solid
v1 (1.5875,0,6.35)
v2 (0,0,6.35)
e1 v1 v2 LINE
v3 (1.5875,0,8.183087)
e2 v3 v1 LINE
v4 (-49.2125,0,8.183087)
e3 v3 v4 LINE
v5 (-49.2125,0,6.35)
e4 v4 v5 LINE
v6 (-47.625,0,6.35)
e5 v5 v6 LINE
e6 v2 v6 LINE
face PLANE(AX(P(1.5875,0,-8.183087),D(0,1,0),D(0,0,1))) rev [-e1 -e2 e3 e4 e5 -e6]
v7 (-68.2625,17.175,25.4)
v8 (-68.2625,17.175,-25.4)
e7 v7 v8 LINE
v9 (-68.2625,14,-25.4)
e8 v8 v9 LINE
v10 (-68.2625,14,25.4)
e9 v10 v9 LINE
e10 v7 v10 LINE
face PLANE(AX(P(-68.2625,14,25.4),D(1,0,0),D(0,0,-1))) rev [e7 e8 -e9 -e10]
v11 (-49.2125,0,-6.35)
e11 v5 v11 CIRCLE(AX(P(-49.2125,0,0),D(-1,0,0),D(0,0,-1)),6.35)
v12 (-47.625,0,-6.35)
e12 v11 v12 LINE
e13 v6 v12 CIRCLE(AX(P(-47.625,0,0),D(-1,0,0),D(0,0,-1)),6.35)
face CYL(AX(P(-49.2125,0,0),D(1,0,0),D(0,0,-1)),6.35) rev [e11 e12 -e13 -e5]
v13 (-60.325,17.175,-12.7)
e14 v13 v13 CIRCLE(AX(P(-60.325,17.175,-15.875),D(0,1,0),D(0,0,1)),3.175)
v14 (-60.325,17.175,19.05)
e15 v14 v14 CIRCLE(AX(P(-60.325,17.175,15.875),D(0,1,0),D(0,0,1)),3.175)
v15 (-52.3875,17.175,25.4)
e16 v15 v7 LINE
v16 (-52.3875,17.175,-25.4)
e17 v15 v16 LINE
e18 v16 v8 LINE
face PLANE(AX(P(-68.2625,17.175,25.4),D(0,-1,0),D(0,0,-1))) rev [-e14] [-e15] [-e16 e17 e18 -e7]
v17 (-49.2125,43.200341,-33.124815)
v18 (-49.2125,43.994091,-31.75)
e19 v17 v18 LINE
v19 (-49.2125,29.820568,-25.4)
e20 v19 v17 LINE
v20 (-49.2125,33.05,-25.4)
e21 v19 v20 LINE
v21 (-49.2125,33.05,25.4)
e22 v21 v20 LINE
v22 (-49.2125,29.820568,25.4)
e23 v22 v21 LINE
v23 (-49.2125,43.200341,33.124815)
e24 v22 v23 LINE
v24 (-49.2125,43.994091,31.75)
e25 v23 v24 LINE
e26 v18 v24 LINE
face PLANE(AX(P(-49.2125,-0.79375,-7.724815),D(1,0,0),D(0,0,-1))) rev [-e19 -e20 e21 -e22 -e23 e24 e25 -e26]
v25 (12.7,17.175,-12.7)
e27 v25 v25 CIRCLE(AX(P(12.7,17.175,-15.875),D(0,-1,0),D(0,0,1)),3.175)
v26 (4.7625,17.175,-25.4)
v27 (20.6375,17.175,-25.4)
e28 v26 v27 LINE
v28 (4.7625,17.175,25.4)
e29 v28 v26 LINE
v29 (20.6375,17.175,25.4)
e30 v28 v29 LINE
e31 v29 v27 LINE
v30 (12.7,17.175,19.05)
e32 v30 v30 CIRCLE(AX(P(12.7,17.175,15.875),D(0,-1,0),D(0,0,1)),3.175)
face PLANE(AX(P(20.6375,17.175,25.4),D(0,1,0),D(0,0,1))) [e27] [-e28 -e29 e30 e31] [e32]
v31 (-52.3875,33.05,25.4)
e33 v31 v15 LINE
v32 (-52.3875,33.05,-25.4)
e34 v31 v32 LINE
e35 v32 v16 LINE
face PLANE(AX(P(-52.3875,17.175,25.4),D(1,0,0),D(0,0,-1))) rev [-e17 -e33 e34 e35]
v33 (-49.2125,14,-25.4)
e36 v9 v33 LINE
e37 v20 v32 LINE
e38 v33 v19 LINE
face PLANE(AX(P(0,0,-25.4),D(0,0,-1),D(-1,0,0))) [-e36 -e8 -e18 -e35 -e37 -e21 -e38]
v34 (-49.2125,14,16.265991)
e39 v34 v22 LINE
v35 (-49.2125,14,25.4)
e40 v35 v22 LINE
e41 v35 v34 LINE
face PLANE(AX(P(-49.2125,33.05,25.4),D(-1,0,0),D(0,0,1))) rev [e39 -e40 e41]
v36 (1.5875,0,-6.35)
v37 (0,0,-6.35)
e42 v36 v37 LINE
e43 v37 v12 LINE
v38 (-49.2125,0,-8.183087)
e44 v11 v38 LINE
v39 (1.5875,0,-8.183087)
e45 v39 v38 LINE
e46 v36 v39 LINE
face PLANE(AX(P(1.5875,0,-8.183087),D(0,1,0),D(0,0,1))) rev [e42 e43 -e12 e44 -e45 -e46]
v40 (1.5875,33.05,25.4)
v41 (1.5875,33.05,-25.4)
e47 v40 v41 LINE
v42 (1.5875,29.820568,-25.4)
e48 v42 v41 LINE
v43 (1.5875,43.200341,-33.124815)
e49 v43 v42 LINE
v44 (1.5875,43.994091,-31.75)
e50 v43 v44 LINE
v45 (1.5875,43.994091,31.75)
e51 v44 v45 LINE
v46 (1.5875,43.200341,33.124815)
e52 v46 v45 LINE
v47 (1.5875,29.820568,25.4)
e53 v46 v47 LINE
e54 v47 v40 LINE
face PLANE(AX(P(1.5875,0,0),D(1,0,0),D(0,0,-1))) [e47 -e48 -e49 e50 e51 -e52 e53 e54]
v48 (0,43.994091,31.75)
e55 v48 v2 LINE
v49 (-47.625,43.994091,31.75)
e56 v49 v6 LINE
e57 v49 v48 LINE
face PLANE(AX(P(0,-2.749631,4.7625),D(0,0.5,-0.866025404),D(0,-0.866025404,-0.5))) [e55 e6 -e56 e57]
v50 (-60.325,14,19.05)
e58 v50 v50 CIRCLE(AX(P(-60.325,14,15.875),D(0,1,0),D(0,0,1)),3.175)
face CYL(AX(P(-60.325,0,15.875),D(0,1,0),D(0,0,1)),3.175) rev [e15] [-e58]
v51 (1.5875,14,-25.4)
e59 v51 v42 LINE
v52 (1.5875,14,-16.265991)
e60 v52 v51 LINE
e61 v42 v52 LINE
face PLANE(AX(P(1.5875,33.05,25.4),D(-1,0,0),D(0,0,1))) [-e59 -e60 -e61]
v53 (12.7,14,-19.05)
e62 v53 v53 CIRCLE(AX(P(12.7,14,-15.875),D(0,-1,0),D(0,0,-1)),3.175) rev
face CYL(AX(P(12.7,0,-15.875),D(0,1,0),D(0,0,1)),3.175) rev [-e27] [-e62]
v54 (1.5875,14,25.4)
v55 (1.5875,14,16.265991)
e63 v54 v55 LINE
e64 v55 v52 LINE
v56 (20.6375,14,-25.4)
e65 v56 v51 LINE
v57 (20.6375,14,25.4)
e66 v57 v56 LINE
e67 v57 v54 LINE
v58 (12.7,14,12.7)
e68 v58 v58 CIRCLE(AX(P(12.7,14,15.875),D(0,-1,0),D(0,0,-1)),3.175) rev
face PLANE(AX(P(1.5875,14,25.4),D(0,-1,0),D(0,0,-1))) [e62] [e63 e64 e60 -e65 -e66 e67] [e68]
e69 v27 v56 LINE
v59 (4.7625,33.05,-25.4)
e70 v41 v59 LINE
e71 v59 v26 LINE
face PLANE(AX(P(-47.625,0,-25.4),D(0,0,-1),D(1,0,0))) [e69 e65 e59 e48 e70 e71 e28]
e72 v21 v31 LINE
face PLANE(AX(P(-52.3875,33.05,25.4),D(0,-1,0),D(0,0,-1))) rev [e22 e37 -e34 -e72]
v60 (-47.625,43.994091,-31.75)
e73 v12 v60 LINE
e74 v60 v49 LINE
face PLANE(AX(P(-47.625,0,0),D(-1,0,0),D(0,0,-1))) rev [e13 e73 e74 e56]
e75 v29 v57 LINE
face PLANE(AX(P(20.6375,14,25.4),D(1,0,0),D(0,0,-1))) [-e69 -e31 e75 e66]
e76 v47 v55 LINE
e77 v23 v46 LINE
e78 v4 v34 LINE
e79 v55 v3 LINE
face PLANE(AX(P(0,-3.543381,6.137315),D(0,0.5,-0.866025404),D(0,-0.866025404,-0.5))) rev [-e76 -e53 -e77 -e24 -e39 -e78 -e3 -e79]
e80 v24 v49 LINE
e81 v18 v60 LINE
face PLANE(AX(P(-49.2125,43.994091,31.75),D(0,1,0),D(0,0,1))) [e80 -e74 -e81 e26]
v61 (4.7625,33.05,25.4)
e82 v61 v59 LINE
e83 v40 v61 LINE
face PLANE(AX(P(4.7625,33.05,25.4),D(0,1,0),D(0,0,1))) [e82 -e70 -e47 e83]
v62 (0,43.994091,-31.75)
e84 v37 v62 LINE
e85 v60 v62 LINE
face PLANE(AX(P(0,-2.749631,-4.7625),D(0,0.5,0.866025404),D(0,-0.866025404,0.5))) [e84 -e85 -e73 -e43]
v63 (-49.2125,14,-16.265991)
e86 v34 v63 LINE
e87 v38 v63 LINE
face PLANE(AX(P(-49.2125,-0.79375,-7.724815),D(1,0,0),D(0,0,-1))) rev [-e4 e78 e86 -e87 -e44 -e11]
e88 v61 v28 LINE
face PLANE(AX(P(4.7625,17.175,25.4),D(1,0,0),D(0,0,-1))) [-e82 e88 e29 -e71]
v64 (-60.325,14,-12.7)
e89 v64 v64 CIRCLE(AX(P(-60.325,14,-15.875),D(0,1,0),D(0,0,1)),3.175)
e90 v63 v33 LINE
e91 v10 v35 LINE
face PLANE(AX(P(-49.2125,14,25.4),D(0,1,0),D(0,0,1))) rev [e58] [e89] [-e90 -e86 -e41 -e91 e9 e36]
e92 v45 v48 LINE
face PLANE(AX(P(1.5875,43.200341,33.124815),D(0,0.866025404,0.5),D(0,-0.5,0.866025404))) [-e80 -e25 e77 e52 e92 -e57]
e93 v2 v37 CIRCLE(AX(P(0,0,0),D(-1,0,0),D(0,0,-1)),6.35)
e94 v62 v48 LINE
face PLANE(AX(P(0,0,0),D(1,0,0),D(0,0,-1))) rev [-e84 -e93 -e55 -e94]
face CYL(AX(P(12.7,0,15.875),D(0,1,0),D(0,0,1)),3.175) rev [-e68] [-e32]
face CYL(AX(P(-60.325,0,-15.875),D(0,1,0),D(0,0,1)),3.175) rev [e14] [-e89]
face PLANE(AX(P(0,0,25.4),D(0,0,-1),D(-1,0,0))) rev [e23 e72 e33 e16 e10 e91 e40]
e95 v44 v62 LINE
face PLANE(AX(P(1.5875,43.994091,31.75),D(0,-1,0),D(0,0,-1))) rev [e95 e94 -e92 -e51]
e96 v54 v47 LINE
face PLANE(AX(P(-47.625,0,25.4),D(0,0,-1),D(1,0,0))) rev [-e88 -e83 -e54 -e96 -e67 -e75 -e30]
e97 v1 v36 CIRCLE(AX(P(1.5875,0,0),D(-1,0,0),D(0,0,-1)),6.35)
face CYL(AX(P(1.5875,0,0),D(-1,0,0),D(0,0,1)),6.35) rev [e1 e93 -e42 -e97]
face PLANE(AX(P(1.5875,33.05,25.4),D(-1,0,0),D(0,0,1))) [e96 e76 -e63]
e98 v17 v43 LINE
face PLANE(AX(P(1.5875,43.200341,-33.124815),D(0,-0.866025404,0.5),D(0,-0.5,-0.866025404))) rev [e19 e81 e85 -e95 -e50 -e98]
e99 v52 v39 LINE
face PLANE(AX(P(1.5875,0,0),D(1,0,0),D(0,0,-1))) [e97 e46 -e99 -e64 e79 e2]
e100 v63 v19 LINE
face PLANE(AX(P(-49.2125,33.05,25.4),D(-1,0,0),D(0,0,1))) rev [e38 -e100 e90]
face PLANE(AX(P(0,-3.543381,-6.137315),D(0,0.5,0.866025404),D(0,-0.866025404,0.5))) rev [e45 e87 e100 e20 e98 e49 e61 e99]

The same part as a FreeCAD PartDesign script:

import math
import FreeCAD as App
import Part
import Sketcher
from FreeCAD import Vector
Q = App.Units.Quantity

doc = App.newDocument("Part")
body = doc.addObject("PartDesign::Body", "Body")

# Sketch on YZ plane
sketch1 = doc.addObject("Sketcher::SketchObject", "Sketch")
body.addObject(sketch1)
sketch1.AttachmentSupport = (doc.YZ_Plane, [""])
sketch1.MapMode = "FlatFace"
sketch1.addGeometry(Part.LineSegment(Vector(44, 32, 0), Vector(0, 6, 0)), False)
sketch1.addGeometry(Part.ArcOfCircle(Part.Circle(Vector(0, 0, 0), Vector(0, 0, 1), 6), math.radians(-90), math.radians(90)), False)
sketch1.addGeometry(Part.LineSegment(Vector(0, -6, 0), Vector(44, -32, 0)), False)
sketch1.addGeometry(Part.LineSegment(Vector(44, -32, 0), Vector(44, 32, 0)), False)
sketch1.addConstraint(Sketcher.Constraint("Coincident", 0, 2, 1, 2))
sketch1.addConstraint(Sketcher.Constraint("Coincident", 1, 1, 2, 1))
sketch1.addConstraint(Sketcher.Constraint("Coincident", 2, 2, 3, 1))
sketch1.addConstraint(Sketcher.Constraint("Coincident", 3, 2, 0, 1))
sketch1.addConstraint(Sketcher.Constraint("Vertical", 3))
sketch1.addConstraint(Sketcher.Constraint("Coincident", 1, 3, -1, 1))
sketch1.addConstraint(Sketcher.Constraint("PointOnObject", 0, 2, -2))
sketch1.addConstraint(Sketcher.Constraint("PointOnObject", 1, 1, -2))
sketch1.addConstraint(Sketcher.Constraint("Equal", 0, 2))
sketch1.addConstraint(Sketcher.Constraint("Radius", 1, Q("0.25 in")))
sketch1.addConstraint(Sketcher.Constraint("Distance", 0, Q("2 in")))
sketch1.addConstraint(Sketcher.Constraint("DistanceY", 3, 1, 3, 2, Q("2.5 in")))
pad1 = doc.addObject("PartDesign::Pad", "Pad")
body.addObject(pad1)
pad1.Profile = sketch1
pad1.Length = Q("0.0625 in")

# Sketch on an angled plane
sketch2 = doc.addObject("Sketcher::SketchObject", "Sketch001")
body.addObject(sketch2)
sketch2.Placement = App.Placement(Vector(0, -2.749631, -4.7625), App.Rotation(Vector(-1, 0, 0), Vector(0, 0.866025404, -0.5), Vector(0, -0.5, -0.866025404), "ZXY"))
sketch2.addGeometry(Part.LineSegment(Vector(-2, 54, 0), Vector(-2, 3, 0)), False)
sketch2.addGeometry(Part.LineSegment(Vector(-2, 3, 0), Vector(49, 3, 0)), False)
sketch2.addGeometry(Part.LineSegment(Vector(49, 3, 0), Vector(49, 54, 0)), False)
sketch2.addGeometry(Part.LineSegment(Vector(49, 54, 0), Vector(-2, 54, 0)), False)
sketch2.addConstraint(Sketcher.Constraint("Coincident", 0, 2, 1, 1))
sketch2.addConstraint(Sketcher.Constraint("Coincident", 1, 2, 2, 1))
sketch2.addConstraint(Sketcher.Constraint("Coincident", 2, 2, 3, 1))
sketch2.addConstraint(Sketcher.Constraint("Coincident", 3, 2, 0, 1))
sketch2.addConstraint(Sketcher.Constraint("Vertical", 0))
sketch2.addConstraint(Sketcher.Constraint("Horizontal", 1))
sketch2.addConstraint(Sketcher.Constraint("Vertical", 2))
sketch2.addConstraint(Sketcher.Constraint("Horizontal", 3))
sketch2.addConstraint(Sketcher.Constraint("Equal", 3, 0))
sketch2.addConstraint(Sketcher.Constraint("DistanceX", 1, 1, 1, 2, Q("2 in")))
sketch2.addConstraint(Sketcher.Constraint("DistanceX", 0, 2, -1, 1, Q("0.0625 in")))
sketch2.addConstraint(Sketcher.Constraint("DistanceY", -1, 1, 0, 2, Q("0.125 in")))
pad2 = doc.addObject("PartDesign::Pad", "Pad001")
body.addObject(pad2)
pad2.Profile = sketch2
pad2.Length = Q("0.0625 in")
doc.recompute()

mirrored = doc.addObject("PartDesign::Mirrored", "Mirrored")
body.addObject(mirrored)
mirrored.Originals = [pad2]
mirrored.MirrorPlane = (doc.XY_Plane, [""])
body.Tip = mirrored
doc.recompute()

datumplane = doc.addObject("PartDesign::Plane", "DatumPlane")
body.addObject(datumplane)
datumplane.AttachmentSupport = (doc.YZ_Plane, [""])
datumplane.MapMode = "FlatFace"
datumplane.AttachmentOffset = App.Placement(Vector(0, 0, -0.9375 * 25.4), App.Rotation())
mirrored2 = doc.addObject("PartDesign::Mirrored", "Mirrored001")
body.addObject(mirrored2)
mirrored2.Originals = [pad1]
mirrored2.MirrorPlane = (datumplane, [""])
body.Tip = mirrored2

# Sketch on YZ plane
sketch3 = doc.addObject("Sketcher::SketchObject", "Sketch002")
body.addObject(sketch3)
sketch3.AttachmentSupport = (doc.YZ_Plane, [""])
sketch3.MapMode = "FlatFace"
sketch3.AttachmentOffset = App.Placement(Vector(0, 0, -1.9375 * 25.4), App.Rotation())
sketch3.addGeometry(Part.LineSegment(Vector(0, -8.2, 0), Vector(-0.8, -8.2, 0)), False)
sketch3.addGeometry(Part.LineSegment(Vector(-0.8, -8.2, 0), Vector(-0.8, 8.2, 0)), False)
sketch3.addGeometry(Part.LineSegment(Vector(-0.8, 8.2, 0), Vector(0, 8.2, 0)), False)
sketch3.addGeometry(Part.LineSegment(Vector(0, 8.2, 0), Vector(0, -8.2, 0)), False)
sketch3.addConstraint(Sketcher.Constraint("Coincident", 0, 2, 1, 1))
sketch3.addConstraint(Sketcher.Constraint("Coincident", 1, 2, 2, 1))
sketch3.addConstraint(Sketcher.Constraint("Coincident", 2, 2, 3, 1))
sketch3.addConstraint(Sketcher.Constraint("Coincident", 3, 2, 0, 1))
sketch3.addConstraint(Sketcher.Constraint("Horizontal", 0))
sketch3.addConstraint(Sketcher.Constraint("Vertical", 1))
sketch3.addConstraint(Sketcher.Constraint("Horizontal", 2))
sketch3.addConstraint(Sketcher.Constraint("Vertical", 3))
sketch3.addConstraint(Sketcher.Constraint("Symmetric", 2, 2, 3, 2, -1, 1))
sketch3.addConstraint(Sketcher.Constraint("DistanceX", 0, 2, 0, 1, Q("0.03125 in")))
sketch3.addConstraint(Sketcher.Constraint("DistanceY", 1, 1, 1, 2, Q("16.366174 mm")))
pocket1 = doc.addObject("PartDesign::Pocket", "Pocket")
body.addObject(pocket1)
pocket1.Profile = sketch3
pocket1.Type = "ThroughAll"
pocket1.Reversed = True

# Sketch on XY plane
sketch4 = doc.addObject("Sketcher::SketchObject", "Sketch003")
body.addObject(sketch4)
sketch4.AttachmentSupport = (doc.XY_Plane, [""])
sketch4.MapMode = "FlatFace"
sketch4.addGeometry(Part.LineSegment(Vector(-49.2, 14, 0), Vector(-49.2, 33, 0)), False)
sketch4.addGeometry(Part.LineSegment(Vector(-49.2, 33, 0), Vector(-52.4, 33, 0)), False)
sketch4.addGeometry(Part.LineSegment(Vector(-52.4, 33, 0), Vector(-52.4, 17.2, 0)), False)
sketch4.addGeometry(Part.LineSegment(Vector(-52.4, 17.2, 0), Vector(-68.3, 17.2, 0)), False)
sketch4.addGeometry(Part.LineSegment(Vector(-68.3, 17.2, 0), Vector(-68.3, 14, 0)), False)
sketch4.addGeometry(Part.LineSegment(Vector(-68.3, 14, 0), Vector(-49.2, 14, 0)), False)
sketch4.addConstraint(Sketcher.Constraint("Coincident", 0, 2, 1, 1))
sketch4.addConstraint(Sketcher.Constraint("Coincident", 1, 2, 2, 1))
sketch4.addConstraint(Sketcher.Constraint("Coincident", 2, 2, 3, 1))
sketch4.addConstraint(Sketcher.Constraint("Coincident", 3, 2, 4, 1))
sketch4.addConstraint(Sketcher.Constraint("Coincident", 4, 2, 5, 1))
sketch4.addConstraint(Sketcher.Constraint("Coincident", 5, 2, 0, 1))
sketch4.addConstraint(Sketcher.Constraint("Vertical", 0))
sketch4.addConstraint(Sketcher.Constraint("Horizontal", 1))
sketch4.addConstraint(Sketcher.Constraint("Vertical", 2))
sketch4.addConstraint(Sketcher.Constraint("Horizontal", 3))
sketch4.addConstraint(Sketcher.Constraint("Vertical", 4))
sketch4.addConstraint(Sketcher.Constraint("Horizontal", 5))
sketch4.addConstraint(Sketcher.Constraint("Equal", 5, 0))
sketch4.addConstraint(Sketcher.Constraint("Equal", 3, 2))
sketch4.addConstraint(Sketcher.Constraint("DistanceX", 5, 1, 5, 2, Q("0.75 in")))
sketch4.addConstraint(Sketcher.Constraint("DistanceX", 1, 2, 1, 1, Q("0.125 in")))
sketch4.addConstraint(Sketcher.Constraint("DistanceX", 0, 2, -1, 1, Q("1.9375 in")))
sketch4.addConstraint(Sketcher.Constraint("DistanceY", -1, 1, 0, 2, Q("33.05 mm")))
pad3 = doc.addObject("PartDesign::Pad", "Pad002")
body.addObject(pad3)
pad3.Profile = sketch4
pad3.Length = Q("2 in")
pad3.Midplane = True

# Sketch on XZ plane
sketch5 = doc.addObject("Sketcher::SketchObject", "Sketch004")
body.addObject(sketch5)
sketch5.AttachmentSupport = (doc.XZ_Plane, [""])
sketch5.MapMode = "FlatFace"
sketch5.AttachmentOffset = App.Placement(Vector(0, 0, -17.175), App.Rotation())
sketch5.addGeometry(Part.Circle(Vector(-60.3, -15.9, 0), Vector(0, 0, 1), 3.2), False)
sketch5.addGeometry(Part.Circle(Vector(-60.3, 15.9, 0), Vector(0, 0, 1), 3.2), False)
sketch5.addConstraint(Sketcher.Constraint("Equal", 0, 1))
sketch5.addConstraint(Sketcher.Constraint("Symmetric", 0, 3, 1, 3, -1))
sketch5.addConstraint(Sketcher.Constraint("Diameter", 0, Q("0.25 in")))
sketch5.addConstraint(Sketcher.Constraint("DistanceY", 0, 3, 1, 3, Q("1.25 in")))
sketch5.addConstraint(Sketcher.Constraint("DistanceX", 0, 3, -1, 1, Q("2.375 in")))
pocket2 = doc.addObject("PartDesign::Pocket", "Pocket001")
body.addObject(pocket2)
pocket2.Profile = sketch5
pocket2.Type = "ThroughAll"
pocket2.Reversed = True
doc.recompute()

datumplane2 = doc.addObject("PartDesign::Plane", "DatumPlane001")
body.addObject(datumplane2)
datumplane2.AttachmentSupport = (doc.YZ_Plane, [""])
datumplane2.MapMode = "FlatFace"
datumplane2.AttachmentOffset = App.Placement(Vector(0, 0, -0.9375 * 25.4), App.Rotation())
mirrored3 = doc.addObject("PartDesign::Mirrored", "Mirrored002")
body.addObject(mirrored3)
mirrored3.Originals = [pad3, pocket2]
mirrored3.MirrorPlane = (datumplane2, [""])
body.Tip = mirrored3

doc.recompute()
